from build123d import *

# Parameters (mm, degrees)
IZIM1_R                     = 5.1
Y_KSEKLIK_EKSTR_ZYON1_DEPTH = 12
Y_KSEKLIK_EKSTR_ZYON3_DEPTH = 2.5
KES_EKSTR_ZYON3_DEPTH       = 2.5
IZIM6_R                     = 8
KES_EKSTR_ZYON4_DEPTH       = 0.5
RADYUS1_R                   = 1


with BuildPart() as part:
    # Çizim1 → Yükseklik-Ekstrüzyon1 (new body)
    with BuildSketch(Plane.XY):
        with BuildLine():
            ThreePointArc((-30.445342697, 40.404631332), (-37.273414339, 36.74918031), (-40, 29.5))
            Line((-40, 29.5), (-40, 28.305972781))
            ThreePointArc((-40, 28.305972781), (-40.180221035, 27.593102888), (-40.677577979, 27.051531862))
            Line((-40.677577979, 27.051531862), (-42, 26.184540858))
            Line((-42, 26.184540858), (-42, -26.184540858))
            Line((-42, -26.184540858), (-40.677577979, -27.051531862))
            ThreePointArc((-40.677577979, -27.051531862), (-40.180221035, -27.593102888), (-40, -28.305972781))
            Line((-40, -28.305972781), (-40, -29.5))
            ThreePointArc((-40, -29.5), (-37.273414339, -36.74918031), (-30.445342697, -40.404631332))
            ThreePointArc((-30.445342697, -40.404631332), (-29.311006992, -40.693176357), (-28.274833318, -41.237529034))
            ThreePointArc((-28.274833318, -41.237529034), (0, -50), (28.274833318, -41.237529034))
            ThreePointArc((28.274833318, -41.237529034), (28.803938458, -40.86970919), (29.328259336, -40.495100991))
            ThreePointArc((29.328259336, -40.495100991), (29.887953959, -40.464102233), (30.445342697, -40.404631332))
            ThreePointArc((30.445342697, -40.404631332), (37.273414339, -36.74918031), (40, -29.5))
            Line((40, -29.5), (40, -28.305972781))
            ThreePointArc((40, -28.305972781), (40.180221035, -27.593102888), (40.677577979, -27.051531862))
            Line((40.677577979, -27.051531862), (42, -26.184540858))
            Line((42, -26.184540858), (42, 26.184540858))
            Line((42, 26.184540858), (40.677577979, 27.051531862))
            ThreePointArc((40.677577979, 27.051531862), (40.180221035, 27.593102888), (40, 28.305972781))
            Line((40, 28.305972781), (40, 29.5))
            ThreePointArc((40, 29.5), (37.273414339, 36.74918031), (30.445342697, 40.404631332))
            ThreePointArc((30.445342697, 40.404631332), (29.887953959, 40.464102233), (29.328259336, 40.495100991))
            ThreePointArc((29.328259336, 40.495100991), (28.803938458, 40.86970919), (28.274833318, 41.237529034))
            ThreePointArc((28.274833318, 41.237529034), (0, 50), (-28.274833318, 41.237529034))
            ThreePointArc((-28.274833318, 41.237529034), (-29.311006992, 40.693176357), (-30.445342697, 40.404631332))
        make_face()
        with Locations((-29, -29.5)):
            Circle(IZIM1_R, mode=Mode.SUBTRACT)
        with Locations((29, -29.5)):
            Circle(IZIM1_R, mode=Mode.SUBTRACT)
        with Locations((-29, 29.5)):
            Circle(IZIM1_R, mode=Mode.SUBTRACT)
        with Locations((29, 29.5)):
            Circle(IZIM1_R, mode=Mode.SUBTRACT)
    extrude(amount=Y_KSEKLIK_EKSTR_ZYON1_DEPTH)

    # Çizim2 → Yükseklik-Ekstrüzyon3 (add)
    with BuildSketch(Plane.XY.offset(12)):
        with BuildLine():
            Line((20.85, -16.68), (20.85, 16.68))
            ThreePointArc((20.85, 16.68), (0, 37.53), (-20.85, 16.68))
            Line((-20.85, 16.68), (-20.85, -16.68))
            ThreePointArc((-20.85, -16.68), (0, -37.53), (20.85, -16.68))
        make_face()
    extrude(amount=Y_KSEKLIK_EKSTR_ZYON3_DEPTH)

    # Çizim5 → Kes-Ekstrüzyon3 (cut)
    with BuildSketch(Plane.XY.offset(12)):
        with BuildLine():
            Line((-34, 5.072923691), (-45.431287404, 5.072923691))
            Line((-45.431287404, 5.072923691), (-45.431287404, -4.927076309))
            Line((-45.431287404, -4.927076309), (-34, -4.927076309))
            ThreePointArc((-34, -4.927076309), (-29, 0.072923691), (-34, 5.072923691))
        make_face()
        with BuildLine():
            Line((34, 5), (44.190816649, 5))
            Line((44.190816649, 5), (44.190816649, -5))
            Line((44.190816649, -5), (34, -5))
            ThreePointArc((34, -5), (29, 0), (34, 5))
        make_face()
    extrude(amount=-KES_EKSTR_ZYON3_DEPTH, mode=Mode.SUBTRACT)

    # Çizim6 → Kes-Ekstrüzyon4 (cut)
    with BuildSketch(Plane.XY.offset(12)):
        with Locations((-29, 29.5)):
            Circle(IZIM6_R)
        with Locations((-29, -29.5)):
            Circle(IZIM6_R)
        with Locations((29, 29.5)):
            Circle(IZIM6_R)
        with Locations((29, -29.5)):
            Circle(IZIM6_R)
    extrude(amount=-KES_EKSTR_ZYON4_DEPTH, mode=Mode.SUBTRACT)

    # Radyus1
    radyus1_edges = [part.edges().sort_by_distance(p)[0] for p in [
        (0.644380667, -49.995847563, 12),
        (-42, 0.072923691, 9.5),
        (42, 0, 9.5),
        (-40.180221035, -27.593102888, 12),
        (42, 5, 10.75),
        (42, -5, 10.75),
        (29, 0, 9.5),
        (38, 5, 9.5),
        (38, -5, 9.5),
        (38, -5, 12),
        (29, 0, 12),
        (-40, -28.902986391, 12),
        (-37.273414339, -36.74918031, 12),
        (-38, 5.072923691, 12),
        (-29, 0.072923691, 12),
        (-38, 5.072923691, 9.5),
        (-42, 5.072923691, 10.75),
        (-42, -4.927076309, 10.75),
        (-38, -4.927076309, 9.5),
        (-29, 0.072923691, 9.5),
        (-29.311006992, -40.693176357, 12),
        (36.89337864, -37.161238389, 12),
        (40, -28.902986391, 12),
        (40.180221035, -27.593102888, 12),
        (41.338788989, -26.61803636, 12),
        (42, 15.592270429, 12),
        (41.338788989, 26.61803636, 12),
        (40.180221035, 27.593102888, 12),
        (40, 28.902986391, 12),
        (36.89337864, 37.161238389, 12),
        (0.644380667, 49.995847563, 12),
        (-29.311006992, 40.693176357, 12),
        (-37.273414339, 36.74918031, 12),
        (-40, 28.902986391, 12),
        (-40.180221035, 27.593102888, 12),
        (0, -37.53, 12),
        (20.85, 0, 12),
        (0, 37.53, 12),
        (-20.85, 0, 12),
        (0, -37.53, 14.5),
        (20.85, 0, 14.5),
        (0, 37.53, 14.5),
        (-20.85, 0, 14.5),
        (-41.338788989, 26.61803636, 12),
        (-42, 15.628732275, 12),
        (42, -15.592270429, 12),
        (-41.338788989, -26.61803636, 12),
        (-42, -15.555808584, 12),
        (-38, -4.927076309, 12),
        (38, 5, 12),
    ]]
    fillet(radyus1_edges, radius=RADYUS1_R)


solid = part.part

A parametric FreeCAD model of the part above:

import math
import FreeCAD as App
import Part
import Sketcher
from FreeCAD import Vector
Q = App.Units.Quantity


def edges_at(feature, points):
    """Names of the edges that pass closest to the given points."""
    edges = feature.Shape.Edges
    near = lambda p: min(range(len(edges)), key=lambda i: edges[i].distToShape(Part.Vertex(*p))[0])
    return sorted({f"Edge{near(p) + 1}" for p in points})

doc = App.newDocument("Part")
params = doc.addObject("Spreadsheet::Sheet", "Params")
for row, (alias, value) in enumerate([
    ("sketch1_radius", "11 mm"),
    ("sketch1_radius2", "5 mm"),
    ("sketch1_radius3", "50 mm"),
    ("sketch1_diameter", "10.2 mm"),
    ("sketch1_radius4", "1.5 mm"),
    ("pad1_length", "12 mm"),
    ("sketch2_radius", "20.85 mm"),
    ("sketch2_height", "33.36 mm"),
    ("pad2_length", "2.5 mm"),
    ("sketch3_radius", "5 mm"),
    ("pocket1_length", "2.5 mm"),
    ("sketch4_diameter", "16 mm"),
    ("pocket2_length", "0.5 mm"),
    ("fillet_radius", "1 mm"),
], start=1):
    params.set(f"A{row}", alias)
    params.set(f"B{row}", "=" + value)
    params.setAlias(f"B{row}", alias)

body = doc.addObject("PartDesign::Body", "Body")

# Sketch on XY plane
sketch1 = body.newObject("Sketcher::SketchObject", "Sketch")
sketch1.AttachmentSupport = (doc.getObject("XY_Plane"), [""])
sketch1.MapMode = "FlatFace"
sketch1.addGeometry([
    Part.ArcOfCircle(Part.Circle(Vector(-29, 29.5, 0), Vector(0, 0, 1), 11), math.radians(98), math.radians(180)),  # 0
    Part.LineSegment(Vector(-40, 29.5, 0), Vector(-40, 28.3, 0)),  # 1
    Part.ArcOfCircle(Part.Circle(Vector(-41.5, 28.3, 0), Vector(0, 0, 1), 1.5), math.radians(-57), math.radians(0)),  # 2
    Part.LineSegment(Vector(-40.7, 27.1, 0), Vector(-42, 26.2, 0)),  # 3
    Part.LineSegment(Vector(-42, 26.2, 0), Vector(-42, -26.2, 0)),  # 4
    Part.LineSegment(Vector(-42, -26.2, 0), Vector(-40.7, -27.1, 0)),  # 5
    Part.ArcOfCircle(Part.Circle(Vector(-41.5, -28.3, 0), Vector(0, 0, 1), 1.5), math.radians(0), math.radians(57)),  # 6
    Part.LineSegment(Vector(-40, -28.3, 0), Vector(-40, -29.5, 0)),  # 7
    Part.ArcOfCircle(Part.Circle(Vector(-29, -29.5, 0), Vector(0, 0, 1), 11), math.radians(-180), math.radians(-98)),  # 8
    Part.ArcOfCircle(Part.Circle(Vector(-31.1, -45.4, 0), Vector(0, 0, 1), 5), math.radians(56), math.radians(82)),  # 9
    Part.ArcOfCircle(Part.Circle(Vector(0, 0, 0), Vector(0, 0, 1), 50), math.radians(-124), math.radians(-56)),  # 10
    Part.ArcOfCircle(Part.Circle(Vector(0, 0, 0), Vector(0, 0, 1), 50), math.radians(-55.56), math.radians(-54.09)),  # 11
    Part.ArcOfCircle(Part.Circle(Vector(29, -29.5, 0), Vector(0, 0, 1), 11), math.radians(-88.29), math.radians(-82.45)),  # 12
    Part.ArcOfCircle(Part.Circle(Vector(29, -29.5, 0), Vector(0, 0, 1), 11), math.radians(-82), math.radians(0)),  # 13
    Part.LineSegment(Vector(40, -29.5, 0), Vector(40, -28.3, 0)),  # 14
    Part.ArcOfCircle(Part.Circle(Vector(41.5, -28.3, 0), Vector(0, 0, 1), 1.5), math.radians(123), math.radians(180)),  # 15
    Part.LineSegment(Vector(40.7, -27.1, 0), Vector(42, -26.2, 0)),  # 16
    Part.LineSegment(Vector(42, -26.2, 0), Vector(42, 26.2, 0)),  # 17
    Part.LineSegment(Vector(42, 26.2, 0), Vector(40.7, 27.1, 0)),  # 18
    Part.ArcOfCircle(Part.Circle(Vector(41.5, 28.3, 0), Vector(0, 0, 1), 1.5), math.radians(180), math.radians(237)),  # 19
    Part.LineSegment(Vector(40, 28.3, 0), Vector(40, 29.5, 0)),  # 20
    Part.ArcOfCircle(Part.Circle(Vector(29, 29.5, 0), Vector(0, 0, 1), 11), math.radians(0), math.radians(82)),  # 21
    Part.ArcOfCircle(Part.Circle(Vector(29, 29.5, 0), Vector(0, 0, 1), 11), math.radians(82.45), math.radians(88.29)),  # 22
    Part.ArcOfCircle(Part.Circle(Vector(0, 0, 0), Vector(0, 0, 1), 50), math.radians(54.09), math.radians(55.56)),  # 23
    Part.ArcOfCircle(Part.Circle(Vector(0, 0, 0), Vector(0, 0, 1), 50), math.radians(56), math.radians(124)),  # 24
    Part.ArcOfCircle(Part.Circle(Vector(-31.1, 45.4, 0), Vector(0, 0, 1), 5), math.radians(-82), math.radians(-56)),  # 25
    Part.Circle(Vector(-29, -29.5, 0), Vector(0, 0, 1), 5.1),  # 26
    Part.Circle(Vector(29, -29.5, 0), Vector(0, 0, 1), 5.1),  # 27
    Part.Circle(Vector(-29, 29.5, 0), Vector(0, 0, 1), 5.1),  # 28
    Part.Circle(Vector(29, 29.5, 0), Vector(0, 0, 1), 5.1),  # 29
], False)
sketch1.addConstraint([
    Sketcher.Constraint("Tangent", 0, 2, 1, 1),
    Sketcher.Constraint("Tangent", 1, 2, 2, 2),
    Sketcher.Constraint("Tangent", 2, 1, 3, 1),
    Sketcher.Constraint("Coincident", 3, 2, 4, 1),
    Sketcher.Constraint("Coincident", 4, 2, 5, 1),
    Sketcher.Constraint("Tangent", 5, 2, 6, 2),
    Sketcher.Constraint("Tangent", 6, 1, 7, 1),
    Sketcher.Constraint("Tangent", 7, 2, 8, 1),
    Sketcher.Constraint("Tangent", 8, 2, 9, 2),
    Sketcher.Constraint("Tangent", 9, 1, 10, 1),
    Sketcher.Constraint("Tangent", 10, 2, 11, 1),
    Sketcher.Constraint("Coincident", 11, 2, 12, 1),
    Sketcher.Constraint("Tangent", 12, 2, 13, 1),
    Sketcher.Constraint("Tangent", 13, 2, 14, 1),
    Sketcher.Constraint("Tangent", 14, 2, 15, 2),
    Sketcher.Constraint("Tangent", 15, 1, 16, 1),
    Sketcher.Constraint("Coincident", 16, 2, 17, 1),
    Sketcher.Constraint("Coincident", 17, 2, 18, 1),
    Sketcher.Constraint("Tangent", 18, 2, 19, 2),
    Sketcher.Constraint("Tangent", 19, 1, 20, 1),
    Sketcher.Constraint("Tangent", 20, 2, 21, 1),
    Sketcher.Constraint("Tangent", 21, 2, 22, 1),
    Sketcher.Constraint("Coincident", 22, 2, 23, 1),
    Sketcher.Constraint("Tangent", 23, 2, 24, 1),
    Sketcher.Constraint("Tangent", 24, 2, 25, 2),
    Sketcher.Constraint("Tangent", 25, 1, 0, 1),
    Sketcher.Constraint("Vertical", 1),
    Sketcher.Constraint("Vertical", 4),
    Sketcher.Constraint("Vertical", 7),
    Sketcher.Constraint("Vertical", 14),
    Sketcher.Constraint("Vertical", 17),
    Sketcher.Constraint("Vertical", 20),
    Sketcher.Constraint("Coincident", 10, 3, -1, 1),
    Sketcher.Constraint("Coincident", 23, 3, -1, 1),
    Sketcher.Constraint("Coincident", 26, 3, 8, 3),
    Sketcher.Constraint("Coincident", 27, 3, 12, 3),
    Sketcher.Constraint("Coincident", 28, 3, 0, 3),
    Sketcher.Constraint("Coincident", 29, 3, 21, 3),
    Sketcher.Constraint("Equal", 2, 6),
    Sketcher.Constraint("Equal", 0, 8),
    Sketcher.Constraint("Equal", 10, 11),
    Sketcher.Constraint("Equal", 8, 12),
    Sketcher.Constraint("Equal", 12, 13),
    Sketcher.Constraint("Equal", 6, 15),
    Sketcher.Constraint("Equal", 15, 19),
    Sketcher.Constraint("Equal", 13, 21),
    Sketcher.Constraint("Equal", 21, 22),
    Sketcher.Constraint("Equal", 11, 23),
    Sketcher.Constraint("Equal", 23, 24),
    Sketcher.Constraint("Equal", 9, 25),
    Sketcher.Constraint("Equal", 26, 27),
    Sketcher.Constraint("Equal", 27, 28),
    Sketcher.Constraint("Equal", 28, 29),
    Sketcher.Constraint("Symmetric", 0, 3, 12, 3, -1, 1),
    Sketcher.Constraint("Symmetric", 6, 3, 19, 3, -1, 1),
    Sketcher.Constraint("Symmetric", 2, 1, 15, 1, -1, 1),
    Sketcher.Constraint("Symmetric", 4, 2, 17, 2, -1, 1),
    Sketcher.Constraint("Symmetric", 8, 2, 21, 2, -1, 1),
    Sketcher.Constraint("Symmetric", 8, 3, 12, 3, -2),
    Sketcher.Constraint("Symmetric", 5, 2, 15, 1, -2),
    Sketcher.Constraint("Horizontal", 9, 1, 10, 2),
    Sketcher.Constraint("Horizontal", 8, 2, 12, 2),
    Sketcher.Constraint("Horizontal", 23, 2, 24, 2),
    Sketcher.Constraint("Radius", 0, Q("11 mm")),
    Sketcher.Constraint("Radius", 9, Q("5 mm")),
    Sketcher.Constraint("Radius", 10, Q("50 mm")),
    Sketcher.Constraint("Diameter", 26, Q("10.2 mm")),
    Sketcher.Constraint("Radius", 2, Q("1.5 mm")),
    Sketcher.Constraint("DistanceX", 0, 3, -1, 1, Q("29 mm")),
    Sketcher.Constraint("DistanceX", 3, 2, -1, 1, Q("42 mm")),
    Sketcher.Constraint("DistanceY", 8, 3, 0, 3, Q("59 mm")),
    Sketcher.Constraint("DistanceY", 4, 2, 4, 1, Q("52.369082 mm")),
    Sketcher.Constraint("Distance", 3, Q("1.581289 mm")),
])
sketch1.setExpression("Constraints[63]", "Params.sketch1_radius")
sketch1.setExpression("Constraints[64]", "Params.sketch1_radius2")
sketch1.setExpression("Constraints[65]", "Params.sketch1_radius3")
sketch1.setExpression("Constraints[66]", "Params.sketch1_diameter")
sketch1.setExpression("Constraints[67]", "Params.sketch1_radius4")
pad1 = body.newObject("PartDesign::Pad", "Pad")
pad1.Profile = sketch1
pad1.setExpression("Length", "Params.pad1_length")

# Sketch on XY plane
sketch2 = body.newObject("Sketcher::SketchObject", "Sketch001")
sketch2.AttachmentSupport = (doc.getObject("XY_Plane"), [""])
sketch2.MapMode = "FlatFace"
sketch2.AttachmentOffset = App.Placement(Vector(0, 0, 12), App.Rotation())
sketch2.addGeometry([
    Part.LineSegment(Vector(21, -17, 0), Vector(21, 17, 0)),
    Part.ArcOfCircle(Part.Circle(Vector(0, 17, 0), Vector(0, 0, 1), 21), math.radians(0), math.radians(180)),
    Part.LineSegment(Vector(-21, 17, 0), Vector(-21, -17, 0)),
    Part.ArcOfCircle(Part.Circle(Vector(0, -17, 0), Vector(0, 0, 1), 21), math.radians(180), math.radians(360)),
], False)
sketch2.addConstraint([
    Sketcher.Constraint("Tangent", 0, 2, 1, 1),
    Sketcher.Constraint("Tangent", 1, 2, 2, 1),
    Sketcher.Constraint("Tangent", 2, 2, 3, 1),
    Sketcher.Constraint("Tangent", 3, 2, 0, 1),
    Sketcher.Constraint("Vertical", 0),
    Sketcher.Constraint("Vertical", 2),
    Sketcher.Constraint("Symmetric", 1, 3, 3, 3, -1, 1),
    Sketcher.Constraint("Radius", 1, Q("20.85 mm")),
    Sketcher.Constraint("DistanceY", 0, 1, 0, 2, Q("33.36 mm")),
])
sketch2.setExpression("Constraints[7]", "Params.sketch2_radius")
sketch2.setExpression("Constraints[8]", "Params.sketch2_height")
pad2 = body.newObject("PartDesign::Pad", "Pad001")
pad2.Profile = sketch2
pad2.setExpression("Length", "Params.pad2_length")

# Sketch on XY plane
sketch3 = body.newObject("Sketcher::SketchObject", "Sketch002")
sketch3.AttachmentSupport = (doc.getObject("XY_Plane"), [""])
sketch3.MapMode = "FlatFace"
sketch3.AttachmentOffset = App.Placement(Vector(0, 0, 12), App.Rotation())
sketch3.addGeometry([
    Part.LineSegment(Vector(-34, 5, 0), Vector(-45, 5, 0)),  # 0
    Part.LineSegment(Vector(-45, 5, 0), Vector(-45, -5, 0)),  # 1
    Part.LineSegment(Vector(-45, -5, 0), Vector(-34, -5, 0)),  # 2
    Part.ArcOfCircle(Part.Circle(Vector(-34, 0, 0), Vector(0, 0, 1), 5), math.radians(-90), math.radians(90)),  # 3
    Part.LineSegment(Vector(44, 5, 0), Vector(34, 5, 0)),  # 4
    Part.ArcOfCircle(Part.Circle(Vector(34, 0, 0), Vector(0, 0, 1), 5), math.radians(90), math.radians(270)),  # 5
    Part.LineSegment(Vector(34, -5, 0), Vector(44, -5, 0)),  # 6
    Part.LineSegment(Vector(44, -5, 0), Vector(44, 5, 0)),  # 7
], False)
sketch3.addConstraint([
    Sketcher.Constraint("Coincident", 0, 2, 1, 1),
    Sketcher.Constraint("Coincident", 1, 2, 2, 1),
    Sketcher.Constraint("Tangent", 2, 2, 3, 1),
    Sketcher.Constraint("Tangent", 3, 2, 0, 1),
    Sketcher.Constraint("Tangent", 4, 2, 5, 1),
    Sketcher.Constraint("Tangent", 5, 2, 6, 1),
    Sketcher.Constraint("Coincident", 6, 2, 7, 1),
    Sketcher.Constraint("Coincident", 7, 2, 4, 1),
    Sketcher.Constraint("Horizontal", 0),
    Sketcher.Constraint("Vertical", 1),
    Sketcher.Constraint("Horizontal", 2),
    Sketcher.Constraint("Horizontal", 4),
    Sketcher.Constraint("Horizontal", 6),
    Sketcher.Constraint("Vertical", 7),
    Sketcher.Constraint("Equal", 3, 5),
    Sketcher.Constraint("PointOnObject", 5, 3, -1),
    Sketcher.Constraint("Radius", 3, Q("5 mm")),
    Sketcher.Constraint("DistanceX", 3, 3, -1, 1, Q("34 mm")),
    Sketcher.Constraint("DistanceX", -1, 1, 5, 3, Q("34 mm")),
    Sketcher.Constraint("DistanceX", 0, 2, 0, 1, Q("11.431287 mm")),
    Sketcher.Constraint("DistanceX", 4, 2, 4, 1, Q("10.190817 mm")),
    Sketcher.Constraint("DistanceY", -1, 1, 3, 3, Q("0.072924 mm")),
])
sketch3.setExpression("Constraints[16]", "Params.sketch3_radius")
pocket1 = body.newObject("PartDesign::Pocket", "Pocket")
pocket1.Profile = sketch3
pocket1.setExpression("Length", "Params.pocket1_length")

# Sketch on XY plane
sketch4 = body.newObject("Sketcher::SketchObject", "Sketch003")
sketch4.AttachmentSupport = (doc.getObject("XY_Plane"), [""])
sketch4.MapMode = "FlatFace"
sketch4.AttachmentOffset = App.Placement(Vector(0, 0, 12), App.Rotation())
sketch4.addGeometry([
    Part.Circle(Vector(-29, 30, 0), Vector(0, 0, 1), 8),
    Part.Circle(Vector(-29, -30, 0), Vector(0, 0, 1), 8),
    Part.Circle(Vector(29, 30, 0), Vector(0, 0, 1), 8),
    Part.Circle(Vector(29, -30, 0), Vector(0, 0, 1), 8),
], False)
sketch4.addConstraint([
    Sketcher.Constraint("Equal", 0, 1),
    Sketcher.Constraint("Equal", 1, 2),
    Sketcher.Constraint("Equal", 2, 3),
    Sketcher.Constraint("Symmetric", 1, 3, 2, 3, -1, 1),
    Sketcher.Constraint("Symmetric", 0, 3, 3, 3, -1, 1),
    Sketcher.Constraint("Symmetric", 0, 3, 2, 3, -2),
    Sketcher.Constraint("Diameter", 0, Q("16 mm")),
    Sketcher.Constraint("DistanceX", 0, 3, -1, 1, Q("29 mm")),
    Sketcher.Constraint("DistanceY", 1, 3, 0, 3, Q("59 mm")),
])
sketch4.setExpression("Constraints[6]", "Params.sketch4_diameter")
pocket2 = body.newObject("PartDesign::Pocket", "Pocket001")
pocket2.Profile = sketch4
pocket2.setExpression("Length", "Params.pocket2_length")
doc.recompute()

fillet = body.newObject("PartDesign::Fillet", "Fillet")
fillet.Base = (pocket2, edges_at(pocket2, [
    (0, -50, 12),
    (-42, 0.073, 9.5),
    (42, 0, 9.5),
    (-40.18, -27.593, 12),
    (42, 5, 10.75),
    (42, -5, 10.75),
    (29, 0, 9.5),
    (38, 5, 9.5),
    (38, -5, 9.5),
    (38, -5, 12),
    (29, 0, 12),
    (-40, -28.903, 12),
    (-37.273, -36.749, 12),
    (-38, 5.073, 12),
    (-29, 0.073, 12),
    (-38, 5.073, 9.5),
    (-42, 5.073, 10.75),
    (-42, -4.927, 10.75),
    (-38, -4.927, 9.5),
    (-29, 0.073, 9.5),
    (-29.311, -40.693, 12),
    (37.273, -36.749, 12),
    (40, -28.903, 12),
    (40.18, -27.593, 12),
    (41.339, -26.618, 12),
    (42, 15.592, 12),
    (41.339, 26.618, 12),
    (40.18, 27.593, 12),
    (40, 28.903, 12),
    (37.273, 36.749, 12),
    (0, 50, 12),
    (-29.311, 40.693, 12),
    (-37.273, 36.749, 12),
    (-40, 28.903, 12),
    (-40.18, 27.593, 12),
    (0, -37.53, 12),
    (20.85, 0, 12),
    (0, 37.53, 12),
    (-20.85, 0, 12),
    (0, -37.53, 14.5),
    (20.85, 0, 14.5),
    (0, 37.53, 14.5),
    (-20.85, 0, 14.5),
    (-41.339, 26.618, 12),
    (-42, 15.629, 12),
    (42, -15.592, 12),
    (-41.339, -26.618, 12),
    (-42, -15.556, 12),
    (-38, -4.927, 12),
    (38, 5, 12),
]))
fillet.setExpression("Radius", "Params.fillet_radius")

doc.recompute()
